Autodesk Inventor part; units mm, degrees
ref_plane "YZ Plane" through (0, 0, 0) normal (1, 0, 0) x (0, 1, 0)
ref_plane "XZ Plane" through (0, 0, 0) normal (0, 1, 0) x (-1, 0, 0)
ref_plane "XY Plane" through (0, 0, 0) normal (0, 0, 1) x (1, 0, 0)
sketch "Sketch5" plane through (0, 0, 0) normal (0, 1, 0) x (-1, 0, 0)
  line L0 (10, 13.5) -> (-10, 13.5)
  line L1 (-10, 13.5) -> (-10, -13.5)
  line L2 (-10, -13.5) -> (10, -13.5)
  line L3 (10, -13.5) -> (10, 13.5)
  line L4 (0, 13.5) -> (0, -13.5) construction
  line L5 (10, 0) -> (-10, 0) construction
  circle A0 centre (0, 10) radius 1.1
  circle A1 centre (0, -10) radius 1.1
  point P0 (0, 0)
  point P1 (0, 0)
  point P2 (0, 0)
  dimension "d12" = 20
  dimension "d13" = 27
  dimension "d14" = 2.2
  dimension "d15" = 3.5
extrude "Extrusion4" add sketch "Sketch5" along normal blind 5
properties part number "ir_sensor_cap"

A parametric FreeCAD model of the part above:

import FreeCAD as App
import Part
import Sketcher

V = App.Vector


def add_polygon(sketch, points):
    """Adds a closed chain of lines whose ends are joined by coincident constraints."""
    first, n = sketch.GeometryCount, len(points)
    for a, b in zip(points, points[1:] + points[:1]):
        sketch.addGeometry(Part.LineSegment(App.Vector(*a, 0), App.Vector(*b, 0)), False)
    for i in range(n):
        sketch.addConstraint(Sketcher.Constraint("Coincident", first + i, 2, first + (i + 1) % n, 1))

doc = App.newDocument("Part")
body = doc.addObject("PartDesign::Body", "Body")

sketch1 = doc.addObject("Sketcher::SketchObject", "Sketch")
body.addObject(sketch1)
sketch1.AttachmentSupport = (doc.XZ_Plane, [""])
sketch1.MapMode = "FlatFace"
add_polygon(sketch1, [(-10, -13.5), (-10, 13.5), (10, 13.5), (10, -13.5)])
sketch1.addGeometry(Part.Circle(V(0, -10, 0), V(0, 0, 1), 1.1), False)
sketch1.addGeometry(Part.Circle(V(0, 10, 0), V(0, 0, 1), 1.1), False)
sketch1.addConstraint(Sketcher.Constraint("Vertical", 0))
sketch1.addConstraint(Sketcher.Constraint("Horizontal", 1))
sketch1.addConstraint(Sketcher.Constraint("Vertical", 2))
sketch1.addConstraint(Sketcher.Constraint("Horizontal", 3))
sketch1.addConstraint(Sketcher.Constraint("Equal", 4, 5))
sketch1.addConstraint(Sketcher.Constraint("Symmetric", 4, 3, 5, 3, -1, 1))
sketch1.addConstraint(Sketcher.Constraint("Symmetric", 0, 2, 2, 2, -1, 1))
sketch1.addConstraint(Sketcher.Constraint("PointOnObject", 4, 3, -2))
sketch1.addConstraint(Sketcher.Constraint("Diameter", 4, 2.2))
sketch1.addConstraint(Sketcher.Constraint("DistanceX", 1, 1, 1, 2, 20.0))
sketch1.addConstraint(Sketcher.Constraint("DistanceY", 0, 1, 0, 2, 27.0))
sketch1.addConstraint(Sketcher.Constraint("DistanceY", 4, 3, 5, 3, 20.0))
pad1 = doc.addObject("PartDesign::Pad", "Pad")
body.addObject(pad1)
pad1.Profile = sketch1
pad1.Length = 5
pad1.Reversed = True

doc.recompute()
